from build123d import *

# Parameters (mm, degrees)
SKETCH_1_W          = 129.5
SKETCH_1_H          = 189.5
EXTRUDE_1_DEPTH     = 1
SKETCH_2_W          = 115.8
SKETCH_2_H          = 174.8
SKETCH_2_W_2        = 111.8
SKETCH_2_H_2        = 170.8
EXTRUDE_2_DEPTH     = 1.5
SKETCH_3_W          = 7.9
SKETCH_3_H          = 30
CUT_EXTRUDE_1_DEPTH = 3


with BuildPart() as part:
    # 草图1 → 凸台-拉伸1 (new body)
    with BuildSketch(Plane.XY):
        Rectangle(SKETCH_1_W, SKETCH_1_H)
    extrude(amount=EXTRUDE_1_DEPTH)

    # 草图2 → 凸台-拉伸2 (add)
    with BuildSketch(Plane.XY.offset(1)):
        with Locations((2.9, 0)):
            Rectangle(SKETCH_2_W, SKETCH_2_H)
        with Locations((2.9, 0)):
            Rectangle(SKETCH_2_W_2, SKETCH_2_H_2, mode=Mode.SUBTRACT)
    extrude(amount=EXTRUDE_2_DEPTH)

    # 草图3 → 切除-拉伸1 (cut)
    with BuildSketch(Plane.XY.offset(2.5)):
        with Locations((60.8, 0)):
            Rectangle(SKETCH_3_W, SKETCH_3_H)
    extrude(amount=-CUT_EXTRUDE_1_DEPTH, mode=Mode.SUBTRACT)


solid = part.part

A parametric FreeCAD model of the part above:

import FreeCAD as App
import Part
import Sketcher

V = App.Vector
Q = App.Units.Quantity

doc = App.newDocument("Part")
body = doc.addObject("PartDesign::Body", "Body")

# Sketch on XY plane
sketch1 = doc.addObject("Sketcher::SketchObject", "Sketch")
body.addObject(sketch1)
sketch1.AttachmentSupport = (doc.XY_Plane, [""])
sketch1.MapMode = "FlatFace"
sketch1.addGeometry(Part.LineSegment(V(-65, 95, 0), V(-65, -95, 0)), False)
sketch1.addGeometry(Part.LineSegment(V(-65, -95, 0), V(65, -95, 0)), False)
sketch1.addGeometry(Part.LineSegment(V(65, -95, 0), V(65, 95, 0)), False)
sketch1.addGeometry(Part.LineSegment(V(65, 95, 0), V(-65, 95, 0)), False)
sketch1.addConstraint(Sketcher.Constraint("Coincident", 0, 2, 1, 1))
sketch1.addConstraint(Sketcher.Constraint("Coincident", 1, 2, 2, 1))
sketch1.addConstraint(Sketcher.Constraint("Coincident", 2, 2, 3, 1))
sketch1.addConstraint(Sketcher.Constraint("Coincident", 3, 2, 0, 1))
sketch1.addConstraint(Sketcher.Constraint("Vertical", 0))
sketch1.addConstraint(Sketcher.Constraint("Horizontal", 1))
sketch1.addConstraint(Sketcher.Constraint("Vertical", 2))
sketch1.addConstraint(Sketcher.Constraint("Horizontal", 3))
sketch1.addConstraint(Sketcher.Constraint("Symmetric", 0, 2, 2, 2, -1, 1))
sketch1.addConstraint(Sketcher.Constraint("DistanceX", 1, 1, 1, 2, Q("129.5 mm")))
sketch1.addConstraint(Sketcher.Constraint("DistanceY", 0, 2, 0, 1, Q("189.5 mm")))
pad1 = doc.addObject("PartDesign::Pad", "Pad")
body.addObject(pad1)
pad1.Profile = sketch1
pad1.Length = 1

# Sketch on XY plane
sketch2 = doc.addObject("Sketcher::SketchObject", "Sketch001")
body.addObject(sketch2)
sketch2.AttachmentSupport = (doc.XY_Plane, [""])
sketch2.MapMode = "FlatFace"
sketch2.AttachmentOffset = App.Placement(V(0, 0, 1), App.Rotation())
sketch2.addGeometry(Part.LineSegment(V(-55, 87, 0), V(-55, -87, 0)), False)
sketch2.addGeometry(Part.LineSegment(V(-55, -87, 0), V(61, -87, 0)), False)
sketch2.addGeometry(Part.LineSegment(V(61, -87, 0), V(61, 87, 0)), False)
sketch2.addGeometry(Part.LineSegment(V(61, 87, 0), V(-55, 87, 0)), False)
sketch2.addGeometry(Part.LineSegment(V(59, -85, 0), V(-53, -85, 0)), False)
sketch2.addGeometry(Part.LineSegment(V(-53, -85, 0), V(-53, 85, 0)), False)
sketch2.addGeometry(Part.LineSegment(V(-53, 85, 0), V(59, 85, 0)), False)
sketch2.addGeometry(Part.LineSegment(V(59, 85, 0), V(59, -85, 0)), False)
sketch2.addConstraint(Sketcher.Constraint("Coincident", 0, 2, 1, 1))
sketch2.addConstraint(Sketcher.Constraint("Coincident", 1, 2, 2, 1))
sketch2.addConstraint(Sketcher.Constraint("Coincident", 2, 2, 3, 1))
sketch2.addConstraint(Sketcher.Constraint("Coincident", 3, 2, 0, 1))
sketch2.addConstraint(Sketcher.Constraint("Coincident", 4, 2, 5, 1))
sketch2.addConstraint(Sketcher.Constraint("Coincident", 5, 2, 6, 1))
sketch2.addConstraint(Sketcher.Constraint("Coincident", 6, 2, 7, 1))
sketch2.addConstraint(Sketcher.Constraint("Coincident", 7, 2, 4, 1))
sketch2.addConstraint(Sketcher.Constraint("Vertical", 0))
sketch2.addConstraint(Sketcher.Constraint("Horizontal", 1))
sketch2.addConstraint(Sketcher.Constraint("Vertical", 2))
sketch2.addConstraint(Sketcher.Constraint("Horizontal", 3))
sketch2.addConstraint(Sketcher.Constraint("Horizontal", 4))
sketch2.addConstraint(Sketcher.Constraint("Vertical", 5))
sketch2.addConstraint(Sketcher.Constraint("Horizontal", 6))
sketch2.addConstraint(Sketcher.Constraint("Vertical", 7))
sketch2.addConstraint(Sketcher.Constraint("DistanceX", 1, 1, 1, 2, Q("115.8 mm")))
sketch2.addConstraint(Sketcher.Constraint("DistanceX", 4, 2, 4, 1, Q("111.8 mm")))
sketch2.addConstraint(Sketcher.Constraint("DistanceY", 0, 2, 0, 1, Q("174.8 mm")))
sketch2.addConstraint(Sketcher.Constraint("DistanceY", 5, 1, 5, 2, Q("170.8 mm")))
sketch2.addConstraint(Sketcher.Constraint("DistanceX", 0, 2, -1, 1, Q("55 mm")))
sketch2.addConstraint(Sketcher.Constraint("DistanceX", 4, 2, -1, 1, Q("53 mm")))
sketch2.addConstraint(Sketcher.Constraint("DistanceY", 0, 2, 4, 2, Q("2 mm")))
sketch2.addConstraint(Sketcher.Constraint("DistanceY", 0, 2, -1, 1, Q("87.4 mm")))
pad2 = doc.addObject("PartDesign::Pad", "Pad001")
body.addObject(pad2)
pad2.Profile = sketch2
pad2.Length = 1.5

# Sketch on XY plane
sketch3 = doc.addObject("Sketcher::SketchObject", "Sketch002")
body.addObject(sketch3)
sketch3.AttachmentSupport = (doc.XY_Plane, [""])
sketch3.MapMode = "FlatFace"
sketch3.AttachmentOffset = App.Placement(V(0, 0, 2.5), App.Rotation())
sketch3.addGeometry(Part.LineSegment(V(57, 15, 0), V(57, -15, 0)), False)
sketch3.addGeometry(Part.LineSegment(V(57, -15, 0), V(65, -15, 0)), False)
sketch3.addGeometry(Part.LineSegment(V(65, -15, 0), V(65, 15, 0)), False)
sketch3.addGeometry(Part.LineSegment(V(65, 15, 0), V(57, 15, 0)), False)
sketch3.addConstraint(Sketcher.Constraint("Coincident", 0, 2, 1, 1))
sketch3.addConstraint(Sketcher.Constraint("Coincident", 1, 2, 2, 1))
sketch3.addConstraint(Sketcher.Constraint("Coincident", 2, 2, 3, 1))
sketch3.addConstraint(Sketcher.Constraint("Coincident", 3, 2, 0, 1))
sketch3.addConstraint(Sketcher.Constraint("Vertical", 0))
sketch3.addConstraint(Sketcher.Constraint("Horizontal", 1))
sketch3.addConstraint(Sketcher.Constraint("Vertical", 2))
sketch3.addConstraint(Sketcher.Constraint("Horizontal", 3))
sketch3.addConstraint(Sketcher.Constraint("DistanceY", 0, 2, 0, 1, Q("30 mm")))
sketch3.addConstraint(Sketcher.Constraint("DistanceX", 1, 1, 1, 2, Q("7.9 mm")))
sketch3.addConstraint(Sketcher.Constraint("DistanceY", 0, 2, -1, 1, Q("15 mm")))
sketch3.addConstraint(Sketcher.Constraint("DistanceX", -1, 1, 0, 2, Q("56.85 mm")))
pocket1 = doc.addObject("PartDesign::Pocket", "Pocket")
body.addObject(pocket1)
pocket1.Profile = sketch3
pocket1.Length = 3

doc.recompute()
